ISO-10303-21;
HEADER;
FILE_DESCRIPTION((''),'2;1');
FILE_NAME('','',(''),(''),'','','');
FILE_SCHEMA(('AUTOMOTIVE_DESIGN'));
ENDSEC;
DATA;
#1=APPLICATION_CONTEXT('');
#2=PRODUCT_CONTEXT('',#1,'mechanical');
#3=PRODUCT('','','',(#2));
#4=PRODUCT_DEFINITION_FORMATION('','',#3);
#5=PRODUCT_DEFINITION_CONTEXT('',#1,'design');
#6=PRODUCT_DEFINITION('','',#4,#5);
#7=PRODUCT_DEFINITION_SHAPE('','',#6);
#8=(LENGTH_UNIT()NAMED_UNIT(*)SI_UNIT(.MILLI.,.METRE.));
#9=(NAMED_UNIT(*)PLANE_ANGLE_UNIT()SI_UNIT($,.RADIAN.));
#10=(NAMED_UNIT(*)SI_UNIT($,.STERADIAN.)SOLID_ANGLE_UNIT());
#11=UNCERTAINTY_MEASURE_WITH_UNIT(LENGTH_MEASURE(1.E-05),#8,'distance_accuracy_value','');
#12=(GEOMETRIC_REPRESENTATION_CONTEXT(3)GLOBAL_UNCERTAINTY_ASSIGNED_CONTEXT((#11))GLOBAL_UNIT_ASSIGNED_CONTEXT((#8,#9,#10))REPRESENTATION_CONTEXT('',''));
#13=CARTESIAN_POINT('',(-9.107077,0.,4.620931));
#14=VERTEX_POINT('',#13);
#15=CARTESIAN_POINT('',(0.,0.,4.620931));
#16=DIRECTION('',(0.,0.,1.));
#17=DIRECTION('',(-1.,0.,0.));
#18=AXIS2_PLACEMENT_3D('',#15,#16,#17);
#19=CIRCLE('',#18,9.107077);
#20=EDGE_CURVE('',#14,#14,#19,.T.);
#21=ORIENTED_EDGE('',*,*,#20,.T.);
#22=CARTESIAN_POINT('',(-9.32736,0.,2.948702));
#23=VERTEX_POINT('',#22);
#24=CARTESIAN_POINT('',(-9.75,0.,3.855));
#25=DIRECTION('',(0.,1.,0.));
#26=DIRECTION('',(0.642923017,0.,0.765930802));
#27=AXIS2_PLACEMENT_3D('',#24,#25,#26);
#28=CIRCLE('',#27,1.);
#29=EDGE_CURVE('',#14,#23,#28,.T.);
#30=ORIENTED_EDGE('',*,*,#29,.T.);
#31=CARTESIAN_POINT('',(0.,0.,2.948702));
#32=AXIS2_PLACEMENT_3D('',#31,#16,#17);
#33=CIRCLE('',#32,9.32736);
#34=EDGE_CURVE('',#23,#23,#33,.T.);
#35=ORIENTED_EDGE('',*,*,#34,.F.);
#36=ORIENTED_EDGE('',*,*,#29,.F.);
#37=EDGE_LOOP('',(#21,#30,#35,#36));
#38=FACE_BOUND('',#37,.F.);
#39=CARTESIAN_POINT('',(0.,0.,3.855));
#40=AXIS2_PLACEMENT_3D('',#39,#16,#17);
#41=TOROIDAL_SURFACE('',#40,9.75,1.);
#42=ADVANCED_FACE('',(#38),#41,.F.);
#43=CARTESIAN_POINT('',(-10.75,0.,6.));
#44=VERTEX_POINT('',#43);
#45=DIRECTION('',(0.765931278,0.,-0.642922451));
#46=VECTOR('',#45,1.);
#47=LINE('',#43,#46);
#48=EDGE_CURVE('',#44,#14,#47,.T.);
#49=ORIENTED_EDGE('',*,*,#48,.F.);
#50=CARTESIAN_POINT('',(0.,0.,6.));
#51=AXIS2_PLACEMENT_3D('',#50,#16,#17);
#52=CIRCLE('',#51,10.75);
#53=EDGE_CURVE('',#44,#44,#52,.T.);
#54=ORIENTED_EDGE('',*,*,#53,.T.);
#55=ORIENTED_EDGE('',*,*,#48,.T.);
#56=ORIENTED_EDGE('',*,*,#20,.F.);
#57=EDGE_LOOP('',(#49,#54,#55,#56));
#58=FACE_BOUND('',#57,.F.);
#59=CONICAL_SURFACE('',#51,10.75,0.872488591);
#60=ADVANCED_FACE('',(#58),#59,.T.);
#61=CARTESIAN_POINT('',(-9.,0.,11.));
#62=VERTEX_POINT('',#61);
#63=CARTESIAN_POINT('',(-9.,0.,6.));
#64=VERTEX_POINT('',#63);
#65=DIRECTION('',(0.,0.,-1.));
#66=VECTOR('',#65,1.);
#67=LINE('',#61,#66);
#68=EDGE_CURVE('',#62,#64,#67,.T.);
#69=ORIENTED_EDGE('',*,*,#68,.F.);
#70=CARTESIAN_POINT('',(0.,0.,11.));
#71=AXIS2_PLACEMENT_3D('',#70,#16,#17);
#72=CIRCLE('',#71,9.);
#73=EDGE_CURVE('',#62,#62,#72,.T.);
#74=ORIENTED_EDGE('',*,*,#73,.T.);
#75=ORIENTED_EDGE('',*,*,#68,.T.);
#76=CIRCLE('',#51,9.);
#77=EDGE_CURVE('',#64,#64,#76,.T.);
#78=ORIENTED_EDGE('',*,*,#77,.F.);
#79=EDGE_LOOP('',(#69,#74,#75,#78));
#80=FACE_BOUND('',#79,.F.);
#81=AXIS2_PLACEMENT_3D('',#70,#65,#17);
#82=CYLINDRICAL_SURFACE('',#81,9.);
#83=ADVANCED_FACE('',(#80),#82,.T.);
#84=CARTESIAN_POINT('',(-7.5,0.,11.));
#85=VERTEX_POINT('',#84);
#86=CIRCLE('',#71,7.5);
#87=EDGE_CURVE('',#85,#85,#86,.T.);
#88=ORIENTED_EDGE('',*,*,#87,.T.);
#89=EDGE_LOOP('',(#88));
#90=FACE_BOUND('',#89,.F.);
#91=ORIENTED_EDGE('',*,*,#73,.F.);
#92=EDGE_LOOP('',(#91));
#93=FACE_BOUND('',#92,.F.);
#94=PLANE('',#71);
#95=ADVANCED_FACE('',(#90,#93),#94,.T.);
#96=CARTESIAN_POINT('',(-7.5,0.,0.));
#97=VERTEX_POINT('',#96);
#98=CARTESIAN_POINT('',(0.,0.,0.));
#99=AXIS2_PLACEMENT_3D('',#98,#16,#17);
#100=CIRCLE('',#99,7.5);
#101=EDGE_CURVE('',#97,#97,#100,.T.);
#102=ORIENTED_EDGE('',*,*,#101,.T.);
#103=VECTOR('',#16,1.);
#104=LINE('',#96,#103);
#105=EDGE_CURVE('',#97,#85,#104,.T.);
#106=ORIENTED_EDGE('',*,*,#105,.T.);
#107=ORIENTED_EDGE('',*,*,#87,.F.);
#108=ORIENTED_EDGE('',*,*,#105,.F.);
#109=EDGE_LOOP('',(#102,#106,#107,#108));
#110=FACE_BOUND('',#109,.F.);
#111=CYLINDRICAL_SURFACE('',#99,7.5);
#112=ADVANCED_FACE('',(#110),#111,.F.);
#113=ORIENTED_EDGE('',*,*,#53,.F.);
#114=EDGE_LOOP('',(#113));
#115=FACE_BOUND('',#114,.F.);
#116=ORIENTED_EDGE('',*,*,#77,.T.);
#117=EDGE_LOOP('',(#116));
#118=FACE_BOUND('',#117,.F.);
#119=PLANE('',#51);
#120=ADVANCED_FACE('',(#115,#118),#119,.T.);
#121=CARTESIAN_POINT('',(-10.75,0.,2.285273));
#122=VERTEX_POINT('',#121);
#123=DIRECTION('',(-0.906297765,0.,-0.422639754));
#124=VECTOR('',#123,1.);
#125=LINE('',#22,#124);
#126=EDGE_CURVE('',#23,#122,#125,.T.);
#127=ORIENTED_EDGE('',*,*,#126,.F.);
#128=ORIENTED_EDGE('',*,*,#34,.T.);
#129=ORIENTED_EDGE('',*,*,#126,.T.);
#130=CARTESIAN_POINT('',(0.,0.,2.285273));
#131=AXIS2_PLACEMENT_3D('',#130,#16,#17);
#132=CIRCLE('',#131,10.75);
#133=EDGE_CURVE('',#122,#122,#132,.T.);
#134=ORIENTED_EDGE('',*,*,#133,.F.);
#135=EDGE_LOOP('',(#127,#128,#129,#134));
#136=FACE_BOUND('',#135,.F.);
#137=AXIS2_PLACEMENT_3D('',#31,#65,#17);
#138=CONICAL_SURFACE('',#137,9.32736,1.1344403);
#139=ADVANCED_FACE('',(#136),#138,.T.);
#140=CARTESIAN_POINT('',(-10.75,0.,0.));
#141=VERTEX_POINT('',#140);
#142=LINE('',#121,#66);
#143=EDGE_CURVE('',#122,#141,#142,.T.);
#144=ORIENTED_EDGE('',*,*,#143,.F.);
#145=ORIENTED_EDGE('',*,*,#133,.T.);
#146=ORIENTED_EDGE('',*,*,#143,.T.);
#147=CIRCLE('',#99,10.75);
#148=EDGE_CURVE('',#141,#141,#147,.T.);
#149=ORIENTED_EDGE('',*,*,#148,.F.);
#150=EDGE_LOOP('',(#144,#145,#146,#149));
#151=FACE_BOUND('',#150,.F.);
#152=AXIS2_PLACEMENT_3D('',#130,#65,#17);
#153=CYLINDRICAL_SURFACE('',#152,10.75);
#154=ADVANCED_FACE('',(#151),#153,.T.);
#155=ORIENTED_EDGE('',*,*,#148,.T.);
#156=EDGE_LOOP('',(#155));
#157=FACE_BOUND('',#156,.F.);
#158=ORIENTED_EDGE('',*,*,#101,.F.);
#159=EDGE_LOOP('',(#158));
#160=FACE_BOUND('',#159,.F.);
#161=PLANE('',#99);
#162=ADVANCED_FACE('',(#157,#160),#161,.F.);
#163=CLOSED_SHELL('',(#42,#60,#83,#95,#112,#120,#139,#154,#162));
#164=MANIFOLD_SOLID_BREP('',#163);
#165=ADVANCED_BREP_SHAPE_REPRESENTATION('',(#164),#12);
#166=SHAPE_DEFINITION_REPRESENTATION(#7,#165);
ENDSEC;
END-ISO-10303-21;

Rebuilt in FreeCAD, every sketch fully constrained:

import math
import FreeCAD as App
import Part
import Sketcher

doc = App.newDocument("Part")
body = doc.addObject("PartDesign::Body", "Body")

# Sketch on XZ plane
sketch1 = body.newObject("Sketcher::SketchObject", "Sketch")
sketch1.AttachmentSupport = (doc.getObject("XZ_Plane"), [""])
sketch1.MapMode = "FlatFace"
sketch1.addGeometry([
    Part.LineSegment(App.Vector(-10.8, 0, 0), App.Vector(-7.5, 0, 0)),  # 0
    Part.LineSegment(App.Vector(-7.5, 0, 0), App.Vector(-7.5, 11, 0)),  # 1
    Part.LineSegment(App.Vector(-7.5, 11, 0), App.Vector(-9, 11, 0)),  # 2
    Part.LineSegment(App.Vector(-9, 11, 0), App.Vector(-9, 6, 0)),  # 3
    Part.LineSegment(App.Vector(-9, 6, 0), App.Vector(-10.8, 6, 0)),  # 4
    Part.LineSegment(App.Vector(-10.8, 6, 0), App.Vector(-9.1, 4.6, 0)),  # 5
    Part.ArcOfCircle(Part.Circle(App.Vector(-9.8, 3.9, 0), App.Vector(0, 0, 1), 1), math.radians(-65), math.radians(50)),  # 6
    Part.LineSegment(App.Vector(-9.3, 2.9, 0), App.Vector(-10.8, 2.3, 0)),  # 7
    Part.LineSegment(App.Vector(-10.8, 2.3, 0), App.Vector(-10.8, 0, 0)),  # 8
], False)
sketch1.addConstraint([
    Sketcher.Constraint("Coincident", 0, 2, 1, 1),
    Sketcher.Constraint("Coincident", 1, 2, 2, 1),
    Sketcher.Constraint("Coincident", 2, 2, 3, 1),
    Sketcher.Constraint("Coincident", 3, 2, 4, 1),
    Sketcher.Constraint("Coincident", 4, 2, 5, 1),
    Sketcher.Constraint("Tangent", 5, 2, 6, 2),
    Sketcher.Constraint("Tangent", 6, 1, 7, 1),
    Sketcher.Constraint("Coincident", 7, 2, 8, 1),
    Sketcher.Constraint("Coincident", 8, 2, 0, 1),
    Sketcher.Constraint("Horizontal", 0),
    Sketcher.Constraint("Vertical", 1),
    Sketcher.Constraint("Horizontal", 2),
    Sketcher.Constraint("Vertical", 3),
    Sketcher.Constraint("Horizontal", 4),
    Sketcher.Constraint("Vertical", 8),
    Sketcher.Constraint("PointOnObject", 0, 2, -1),
    Sketcher.Constraint("Vertical", 4, 2, 7, 2),
    Sketcher.Constraint("Radius", 6, 1.0),
    Sketcher.Constraint("DistanceY", 1, 1, 1, 2, 11.0),
    Sketcher.Constraint("DistanceY", 3, 2, 3, 1, 5.0),
    Sketcher.Constraint("DistanceX", 2, 2, 2, 1, 1.5),
    Sketcher.Constraint("DistanceX", 2, 2, -1, 1, 9.0),
    Sketcher.Constraint("DistanceX", 4, 2, 6, 3, 1.0),
    Sketcher.Constraint("DistanceX", 0, 1, 0, 2, 3.25),
    Sketcher.Constraint("Distance", 5, 2.145001),
    Sketcher.Constraint("DistanceY", 8, 2, 8, 1, 2.285273),
])
revolution = body.newObject("PartDesign::Revolution", "Revolution")
revolution.Profile = sketch1
revolution.ReferenceAxis = (sketch1, ["V_Axis"])
revolution.Angle = 360

doc.recompute()
